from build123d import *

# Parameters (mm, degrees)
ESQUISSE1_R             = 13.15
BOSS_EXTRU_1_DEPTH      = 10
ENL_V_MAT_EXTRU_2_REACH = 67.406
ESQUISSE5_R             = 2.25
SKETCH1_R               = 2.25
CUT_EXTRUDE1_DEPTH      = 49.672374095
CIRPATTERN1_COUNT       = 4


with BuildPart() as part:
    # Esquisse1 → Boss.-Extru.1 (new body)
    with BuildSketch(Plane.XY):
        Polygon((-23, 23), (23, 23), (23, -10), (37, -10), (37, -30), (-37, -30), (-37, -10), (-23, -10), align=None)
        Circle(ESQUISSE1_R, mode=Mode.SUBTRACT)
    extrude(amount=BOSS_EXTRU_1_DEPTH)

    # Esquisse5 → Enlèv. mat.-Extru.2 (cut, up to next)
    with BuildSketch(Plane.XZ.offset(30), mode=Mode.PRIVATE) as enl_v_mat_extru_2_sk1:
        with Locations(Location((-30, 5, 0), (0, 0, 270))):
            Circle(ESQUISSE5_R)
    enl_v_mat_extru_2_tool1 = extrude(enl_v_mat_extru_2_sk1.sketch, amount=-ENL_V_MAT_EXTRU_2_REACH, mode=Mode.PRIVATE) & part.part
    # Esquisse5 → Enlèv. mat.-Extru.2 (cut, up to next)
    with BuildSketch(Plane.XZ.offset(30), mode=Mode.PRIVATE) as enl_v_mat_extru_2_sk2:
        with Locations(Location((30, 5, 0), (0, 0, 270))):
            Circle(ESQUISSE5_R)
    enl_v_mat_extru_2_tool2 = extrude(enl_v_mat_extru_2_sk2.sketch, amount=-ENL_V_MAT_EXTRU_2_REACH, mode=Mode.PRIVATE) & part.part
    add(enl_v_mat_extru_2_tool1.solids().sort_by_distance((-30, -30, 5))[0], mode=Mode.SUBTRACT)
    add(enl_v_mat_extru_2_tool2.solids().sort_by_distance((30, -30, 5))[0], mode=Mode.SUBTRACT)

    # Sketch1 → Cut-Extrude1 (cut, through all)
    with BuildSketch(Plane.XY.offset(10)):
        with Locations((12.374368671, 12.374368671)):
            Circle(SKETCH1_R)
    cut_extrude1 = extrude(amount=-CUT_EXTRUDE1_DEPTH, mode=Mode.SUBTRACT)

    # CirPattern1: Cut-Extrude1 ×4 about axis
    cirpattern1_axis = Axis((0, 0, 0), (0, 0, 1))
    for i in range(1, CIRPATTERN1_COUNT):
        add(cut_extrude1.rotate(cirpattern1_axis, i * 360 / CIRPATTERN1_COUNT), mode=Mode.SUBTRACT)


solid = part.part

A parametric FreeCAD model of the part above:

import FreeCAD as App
import Part
import Sketcher
Q = App.Units.Quantity


def add_polygon(sketch, points):
    """Adds a closed chain of lines whose ends are joined by coincident constraints."""
    first, n = sketch.GeometryCount, len(points)
    for a, b in zip(points, points[1:] + points[:1]):
        sketch.addGeometry(Part.LineSegment(App.Vector(*a, 0), App.Vector(*b, 0)), False)
    for i in range(n):
        sketch.addConstraint(Sketcher.Constraint("Coincident", first + i, 2, first + (i + 1) % n, 1))

doc = App.newDocument("Part")
body = doc.addObject("PartDesign::Body", "Body")

# Sketch on XY plane
sketch1 = body.newObject("Sketcher::SketchObject", "Sketch")
sketch1.AttachmentSupport = (doc.getObject("XY_Plane"), [""])
sketch1.MapMode = "FlatFace"
add_polygon(sketch1, [(23, 23), (-23, 23), (-23, -10), (-37, -10), (-37, -30), (37, -30), (37, -10), (23, -10)])  # lines 0-7
sketch1.addGeometry(Part.Circle(App.Vector(0, 0, 0), App.Vector(0, 0, 1), 13.15), False)  # 8
sketch1.addConstraint(Sketcher.Constraint("Horizontal", 0))
sketch1.addConstraint(Sketcher.Constraint("Vertical", 1))
sketch1.addConstraint(Sketcher.Constraint("Horizontal", 2))
sketch1.addConstraint(Sketcher.Constraint("Vertical", 3))
sketch1.addConstraint(Sketcher.Constraint("Horizontal", 4))
sketch1.addConstraint(Sketcher.Constraint("Vertical", 5))
sketch1.addConstraint(Sketcher.Constraint("Horizontal", 6))
sketch1.addConstraint(Sketcher.Constraint("Vertical", 7))
sketch1.addConstraint(Sketcher.Constraint("Coincident", 8, 3, -1, 1))
sketch1.addConstraint(Sketcher.Constraint("Symmetric", 2, 2, 5, 2, -2))
sketch1.addConstraint(Sketcher.Constraint("Equal", 2, 6))
sketch1.addConstraint(Sketcher.Constraint("Diameter", 8, Q("26.3 mm")))
sketch1.addConstraint(Sketcher.Constraint("DistanceX", 0, 2, 0, 1, Q("46 mm")))
sketch1.addConstraint(Sketcher.Constraint("DistanceX", 2, 2, 2, 1, Q("14 mm")))
sketch1.addConstraint(Sketcher.Constraint("DistanceY", 1, 2, 1, 1, Q("33 mm")))
sketch1.addConstraint(Sketcher.Constraint("DistanceY", 3, 2, 3, 1, Q("20 mm")))
sketch1.addConstraint(Sketcher.Constraint("DistanceY", -1, 1, 0, 2, Q("23 mm")))
pad1 = body.newObject("PartDesign::Pad", "Pad")
pad1.Profile = sketch1
pad1.Length = 10

# Sketch on XZ plane
sketch2 = body.newObject("Sketcher::SketchObject", "Sketch001")
sketch2.AttachmentSupport = (doc.getObject("XZ_Plane"), [""])
sketch2.MapMode = "FlatFace"
sketch2.AttachmentOffset = App.Placement(App.Vector(0, 0, 30), App.Rotation())
sketch2.addGeometry(Part.Circle(App.Vector(-30, 5, 0), App.Vector(0, 0, 1), 2.25), False)
sketch2.addConstraint(Sketcher.Constraint("Diameter", 0, Q("4.5 mm")))
sketch2.addConstraint(Sketcher.Constraint("DistanceX", 0, 3, -1, 1, Q("30 mm")))
sketch2.addConstraint(Sketcher.Constraint("DistanceY", -1, 1, 0, 3, Q("5 mm")))
pocket1 = body.newObject("PartDesign::Pocket", "Pocket")
pocket1.Profile = sketch2
pocket1.Type = "UpToFirst"

# Sketch on XZ plane
sketch3 = body.newObject("Sketcher::SketchObject", "Sketch002")
sketch3.AttachmentSupport = (doc.getObject("XZ_Plane"), [""])
sketch3.MapMode = "FlatFace"
sketch3.AttachmentOffset = App.Placement(App.Vector(0, 0, 30), App.Rotation())
sketch3.addGeometry(Part.Circle(App.Vector(30, 5, 0), App.Vector(0, 0, 1), 2.25), False)
sketch3.addConstraint(Sketcher.Constraint("Diameter", 0, Q("4.5 mm")))
sketch3.addConstraint(Sketcher.Constraint("DistanceX", -1, 1, 0, 3, Q("30 mm")))
sketch3.addConstraint(Sketcher.Constraint("DistanceY", -1, 1, 0, 3, Q("5 mm")))
pocket2 = body.newObject("PartDesign::Pocket", "Pocket001")
pocket2.Profile = sketch3
pocket2.Type = "UpToFirst"

# Sketch on XY plane
sketch4 = body.newObject("Sketcher::SketchObject", "Sketch003")
sketch4.AttachmentSupport = (doc.getObject("XY_Plane"), [""])
sketch4.MapMode = "FlatFace"
sketch4.AttachmentOffset = App.Placement(App.Vector(0, 0, 10), App.Rotation())
sketch4.addGeometry(Part.Circle(App.Vector(12.374369, 12.374369, 0), App.Vector(0, 0, 1), 2.25), False)
sketch4.addConstraint(Sketcher.Constraint("Diameter", 0, Q("4.5 mm")))
sketch4.addConstraint(Sketcher.Constraint("DistanceX", -1, 1, 0, 3, Q("12.374369 mm")))
sketch4.addConstraint(Sketcher.Constraint("DistanceY", -1, 1, 0, 3, Q("12.374369 mm")))
pocket3 = body.newObject("PartDesign::Pocket", "Pocket002")
pocket3.Profile = sketch4
pocket3.Type = "ThroughAll"
doc.recompute()

polarpattern = body.newObject("PartDesign::PolarPattern", "PolarPattern")
polarpattern.Originals = [pocket3]
polarpattern.Axis = (doc.getObject("Z_Axis"), [""])
polarpattern.Angle = 360
polarpattern.Occurrences = 4
body.Tip = polarpattern

doc.recompute()
